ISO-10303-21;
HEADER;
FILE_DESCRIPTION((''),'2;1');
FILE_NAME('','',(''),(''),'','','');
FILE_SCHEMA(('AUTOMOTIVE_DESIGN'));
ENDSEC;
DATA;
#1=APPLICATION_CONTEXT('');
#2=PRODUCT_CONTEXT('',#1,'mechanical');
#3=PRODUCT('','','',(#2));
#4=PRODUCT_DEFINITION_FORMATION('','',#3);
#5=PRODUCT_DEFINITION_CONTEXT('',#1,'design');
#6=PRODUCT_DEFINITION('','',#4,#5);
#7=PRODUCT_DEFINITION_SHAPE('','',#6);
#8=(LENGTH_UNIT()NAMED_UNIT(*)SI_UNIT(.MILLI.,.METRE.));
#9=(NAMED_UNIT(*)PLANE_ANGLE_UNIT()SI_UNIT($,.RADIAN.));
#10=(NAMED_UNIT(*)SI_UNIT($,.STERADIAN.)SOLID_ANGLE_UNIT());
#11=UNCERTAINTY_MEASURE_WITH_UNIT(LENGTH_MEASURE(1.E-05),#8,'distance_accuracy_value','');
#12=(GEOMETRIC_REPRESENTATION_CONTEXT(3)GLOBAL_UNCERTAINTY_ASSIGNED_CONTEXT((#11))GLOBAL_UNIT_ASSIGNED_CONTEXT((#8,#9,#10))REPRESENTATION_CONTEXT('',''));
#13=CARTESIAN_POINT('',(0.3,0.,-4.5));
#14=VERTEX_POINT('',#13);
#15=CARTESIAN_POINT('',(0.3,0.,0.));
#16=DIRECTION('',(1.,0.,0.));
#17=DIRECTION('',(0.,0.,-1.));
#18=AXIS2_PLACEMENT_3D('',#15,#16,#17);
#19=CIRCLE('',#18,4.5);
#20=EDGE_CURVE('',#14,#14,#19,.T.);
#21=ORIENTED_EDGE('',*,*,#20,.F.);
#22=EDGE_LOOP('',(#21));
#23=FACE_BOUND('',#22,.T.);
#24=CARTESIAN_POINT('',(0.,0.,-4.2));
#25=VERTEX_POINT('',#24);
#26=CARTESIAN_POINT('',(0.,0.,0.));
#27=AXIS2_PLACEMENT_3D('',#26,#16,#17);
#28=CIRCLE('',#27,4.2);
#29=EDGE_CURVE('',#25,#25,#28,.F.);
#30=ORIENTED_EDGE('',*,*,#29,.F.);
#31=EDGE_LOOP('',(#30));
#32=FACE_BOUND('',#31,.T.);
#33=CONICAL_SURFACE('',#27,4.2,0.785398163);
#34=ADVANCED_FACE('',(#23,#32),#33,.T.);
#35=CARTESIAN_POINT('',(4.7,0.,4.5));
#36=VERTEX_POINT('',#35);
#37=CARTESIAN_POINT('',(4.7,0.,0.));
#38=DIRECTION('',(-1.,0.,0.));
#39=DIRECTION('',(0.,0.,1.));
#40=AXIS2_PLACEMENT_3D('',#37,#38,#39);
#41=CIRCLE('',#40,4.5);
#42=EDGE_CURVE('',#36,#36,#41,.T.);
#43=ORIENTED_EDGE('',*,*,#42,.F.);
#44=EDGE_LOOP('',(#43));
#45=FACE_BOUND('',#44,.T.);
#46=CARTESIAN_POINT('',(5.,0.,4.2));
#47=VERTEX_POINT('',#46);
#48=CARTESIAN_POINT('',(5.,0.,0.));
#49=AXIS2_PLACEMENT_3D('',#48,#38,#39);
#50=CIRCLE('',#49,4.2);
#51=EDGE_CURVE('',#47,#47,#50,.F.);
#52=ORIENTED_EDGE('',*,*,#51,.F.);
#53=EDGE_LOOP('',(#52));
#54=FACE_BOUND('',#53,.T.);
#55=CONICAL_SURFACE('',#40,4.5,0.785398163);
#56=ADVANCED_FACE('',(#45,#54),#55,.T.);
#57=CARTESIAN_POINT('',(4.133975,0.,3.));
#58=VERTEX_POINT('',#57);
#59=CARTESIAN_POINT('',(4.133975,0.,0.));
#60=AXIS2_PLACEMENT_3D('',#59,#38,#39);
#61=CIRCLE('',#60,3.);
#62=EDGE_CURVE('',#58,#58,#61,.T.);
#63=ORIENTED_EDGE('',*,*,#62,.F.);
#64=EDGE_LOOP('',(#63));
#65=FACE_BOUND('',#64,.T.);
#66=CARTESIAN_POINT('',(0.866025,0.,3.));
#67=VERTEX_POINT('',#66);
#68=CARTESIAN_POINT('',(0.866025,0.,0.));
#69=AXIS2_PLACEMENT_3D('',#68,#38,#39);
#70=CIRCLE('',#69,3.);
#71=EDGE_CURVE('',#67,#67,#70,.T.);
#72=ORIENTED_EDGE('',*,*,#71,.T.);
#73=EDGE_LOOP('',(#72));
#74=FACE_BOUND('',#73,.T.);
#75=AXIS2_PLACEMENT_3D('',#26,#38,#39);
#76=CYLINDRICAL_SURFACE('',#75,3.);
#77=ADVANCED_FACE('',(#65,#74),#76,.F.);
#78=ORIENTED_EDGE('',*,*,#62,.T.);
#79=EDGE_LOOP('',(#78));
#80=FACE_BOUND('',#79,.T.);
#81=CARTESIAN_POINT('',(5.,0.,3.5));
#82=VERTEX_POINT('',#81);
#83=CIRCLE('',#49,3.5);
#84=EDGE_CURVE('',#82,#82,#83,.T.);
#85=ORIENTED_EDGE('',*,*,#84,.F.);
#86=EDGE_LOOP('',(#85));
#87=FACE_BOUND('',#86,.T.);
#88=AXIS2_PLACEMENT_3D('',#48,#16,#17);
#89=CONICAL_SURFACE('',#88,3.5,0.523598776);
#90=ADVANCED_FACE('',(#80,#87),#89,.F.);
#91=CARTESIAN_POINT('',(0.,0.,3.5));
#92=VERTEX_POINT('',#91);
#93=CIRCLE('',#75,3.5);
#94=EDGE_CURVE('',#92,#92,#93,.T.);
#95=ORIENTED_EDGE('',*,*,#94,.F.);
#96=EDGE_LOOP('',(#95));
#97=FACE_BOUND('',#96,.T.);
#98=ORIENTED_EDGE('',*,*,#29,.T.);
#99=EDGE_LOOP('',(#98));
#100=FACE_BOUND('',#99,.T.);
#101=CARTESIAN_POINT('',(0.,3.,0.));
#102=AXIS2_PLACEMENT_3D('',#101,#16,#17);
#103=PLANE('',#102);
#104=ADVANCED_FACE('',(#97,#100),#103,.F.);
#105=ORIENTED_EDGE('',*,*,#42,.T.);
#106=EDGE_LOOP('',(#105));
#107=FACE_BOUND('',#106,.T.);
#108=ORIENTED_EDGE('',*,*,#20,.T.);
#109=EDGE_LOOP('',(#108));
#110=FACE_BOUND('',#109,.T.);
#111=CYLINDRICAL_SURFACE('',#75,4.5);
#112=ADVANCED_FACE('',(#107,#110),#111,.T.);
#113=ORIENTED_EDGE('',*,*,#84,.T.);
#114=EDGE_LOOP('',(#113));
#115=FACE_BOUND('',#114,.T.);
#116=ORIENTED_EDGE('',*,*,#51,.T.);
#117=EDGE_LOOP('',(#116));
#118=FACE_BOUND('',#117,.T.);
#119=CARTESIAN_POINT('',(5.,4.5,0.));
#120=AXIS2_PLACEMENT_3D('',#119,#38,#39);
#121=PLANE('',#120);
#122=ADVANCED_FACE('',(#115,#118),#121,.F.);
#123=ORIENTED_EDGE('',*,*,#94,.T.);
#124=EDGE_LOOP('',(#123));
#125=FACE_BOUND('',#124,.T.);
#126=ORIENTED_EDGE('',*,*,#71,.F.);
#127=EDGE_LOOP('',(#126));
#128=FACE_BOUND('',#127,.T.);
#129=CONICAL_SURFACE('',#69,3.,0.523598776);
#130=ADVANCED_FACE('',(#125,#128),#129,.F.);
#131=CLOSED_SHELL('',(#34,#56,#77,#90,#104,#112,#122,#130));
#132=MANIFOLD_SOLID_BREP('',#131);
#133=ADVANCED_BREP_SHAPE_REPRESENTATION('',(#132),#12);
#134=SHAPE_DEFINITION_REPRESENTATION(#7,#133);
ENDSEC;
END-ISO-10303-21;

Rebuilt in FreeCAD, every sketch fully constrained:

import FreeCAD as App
import Part
import Sketcher
from FreeCAD import Vector
Q = App.Units.Quantity


def edges_at(feature, points):
    """Names of the edges that pass closest to the given points."""
    edges = feature.Shape.Edges
    near = lambda p: min(range(len(edges)), key=lambda i: edges[i].distToShape(Part.Vertex(*p))[0])
    return sorted({f"Edge{near(p) + 1}" for p in points})


def add_polygon(sketch, points):
    """Adds a closed chain of lines whose ends are joined by coincident constraints."""
    first, n = sketch.GeometryCount, len(points)
    for a, b in zip(points, points[1:] + points[:1]):
        sketch.addGeometry(Part.LineSegment(App.Vector(*a, 0), App.Vector(*b, 0)), False)
    for i in range(n):
        sketch.addConstraint(Sketcher.Constraint("Coincident", first + i, 2, first + (i + 1) % n, 1))

doc = App.newDocument("Part")
params = doc.addObject("Spreadsheet::Sheet", "Params")
for row, (alias, value) in enumerate([
    ("sketch1_width", "5 mm"),
    ("sketch1_height", "1.5 mm"),
    ("revolution_angle", "360 deg"),
    ("chamfer_size", "0.3 mm"),
    ("sketch2_length", "1 mm"),
    ("groove_angle", "360 deg"),
], start=1):
    params.set(f"A{row}", alias)
    params.set(f"B{row}", "=" + value)
    params.setAlias(f"B{row}", alias)

body = doc.addObject("PartDesign::Body", "Body")

# Sketch on XY plane
sketch1 = body.newObject("Sketcher::SketchObject", "Sketch")
sketch1.AttachmentSupport = (doc.getObject("XY_Plane"), [""])
sketch1.MapMode = "FlatFace"
add_polygon(sketch1, [(0, 4.5), (0, 3), (5, 3), (5, 4.5)])  # lines 0-3
sketch1.addConstraint([
    Sketcher.Constraint("Vertical", 0),
    Sketcher.Constraint("Horizontal", 1),
    Sketcher.Constraint("Vertical", 2),
    Sketcher.Constraint("Horizontal", 3),
    Sketcher.Constraint("PointOnObject", 0, 2, -2),
    Sketcher.Constraint("DistanceX", 1, 1, 1, 2, Q("5 mm")),
    Sketcher.Constraint("DistanceY", 0, 2, 0, 1, Q("1.5 mm")),
    Sketcher.Constraint("DistanceY", -1, 1, 0, 2, Q("3 mm")),
])
sketch1.setExpression("Constraints[9]", "Params.sketch1_width")
sketch1.setExpression("Constraints[10]", "Params.sketch1_height")
revolution = body.newObject("PartDesign::Revolution", "Revolution")
revolution.Profile = sketch1
revolution.ReferenceAxis = (sketch1, ["H_Axis"])
revolution.setExpression("Angle", "Params.revolution_angle")
doc.recompute()

chamfer = body.newObject("PartDesign::Chamfer", "Chamfer")
chamfer.Base = (revolution, edges_at(revolution, [(5, 0, -4.5), (0, 0, -4.5)]))
chamfer.setExpression("Size", "Params.chamfer_size")

# Sketch on XY plane
sketch2 = body.newObject("Sketcher::SketchObject", "Sketch001")
sketch2.AttachmentSupport = (doc.getObject("XY_Plane"), [""])
sketch2.MapMode = "FlatFace"
add_polygon(sketch2, [(0, 3.5), (0, 3), (0.9, 3)])  # lines 0-2
add_polygon(sketch2, [(5, 3.5), (4.1, 3), (5, 3)])  # lines 3-5
sketch2.addConstraint([
    Sketcher.Constraint("Vertical", 0),
    Sketcher.Constraint("Horizontal", 1),
    Sketcher.Constraint("Horizontal", 4),
    Sketcher.Constraint("Vertical", 5),
    Sketcher.Constraint("PointOnObject", 0, 2, -2),
    Sketcher.Constraint("Horizontal", 1, 2, 3, 2),
    Sketcher.Constraint("Horizontal", 2, 2, 5, 2),
    Sketcher.Constraint("Equal", 1, 4),
    Sketcher.Constraint("Angle", 2, Q("150 deg")),
    Sketcher.Constraint("Distance", 2, Q("1 mm")),
    Sketcher.Constraint("DistanceY", -1, 1, 0, 2, Q("3 mm")),
    Sketcher.Constraint("DistanceX", -1, 1, 4, 2, Q("5 mm")),
])
sketch2.setExpression("Constraints[15]", "Params.sketch2_length")
groove = body.newObject("PartDesign::Groove", "Groove")
groove.Profile = sketch2
groove.ReferenceAxis = (sketch2, ["H_Axis"])
groove.setExpression("Angle", "Params.groove_angle")

doc.recompute()
